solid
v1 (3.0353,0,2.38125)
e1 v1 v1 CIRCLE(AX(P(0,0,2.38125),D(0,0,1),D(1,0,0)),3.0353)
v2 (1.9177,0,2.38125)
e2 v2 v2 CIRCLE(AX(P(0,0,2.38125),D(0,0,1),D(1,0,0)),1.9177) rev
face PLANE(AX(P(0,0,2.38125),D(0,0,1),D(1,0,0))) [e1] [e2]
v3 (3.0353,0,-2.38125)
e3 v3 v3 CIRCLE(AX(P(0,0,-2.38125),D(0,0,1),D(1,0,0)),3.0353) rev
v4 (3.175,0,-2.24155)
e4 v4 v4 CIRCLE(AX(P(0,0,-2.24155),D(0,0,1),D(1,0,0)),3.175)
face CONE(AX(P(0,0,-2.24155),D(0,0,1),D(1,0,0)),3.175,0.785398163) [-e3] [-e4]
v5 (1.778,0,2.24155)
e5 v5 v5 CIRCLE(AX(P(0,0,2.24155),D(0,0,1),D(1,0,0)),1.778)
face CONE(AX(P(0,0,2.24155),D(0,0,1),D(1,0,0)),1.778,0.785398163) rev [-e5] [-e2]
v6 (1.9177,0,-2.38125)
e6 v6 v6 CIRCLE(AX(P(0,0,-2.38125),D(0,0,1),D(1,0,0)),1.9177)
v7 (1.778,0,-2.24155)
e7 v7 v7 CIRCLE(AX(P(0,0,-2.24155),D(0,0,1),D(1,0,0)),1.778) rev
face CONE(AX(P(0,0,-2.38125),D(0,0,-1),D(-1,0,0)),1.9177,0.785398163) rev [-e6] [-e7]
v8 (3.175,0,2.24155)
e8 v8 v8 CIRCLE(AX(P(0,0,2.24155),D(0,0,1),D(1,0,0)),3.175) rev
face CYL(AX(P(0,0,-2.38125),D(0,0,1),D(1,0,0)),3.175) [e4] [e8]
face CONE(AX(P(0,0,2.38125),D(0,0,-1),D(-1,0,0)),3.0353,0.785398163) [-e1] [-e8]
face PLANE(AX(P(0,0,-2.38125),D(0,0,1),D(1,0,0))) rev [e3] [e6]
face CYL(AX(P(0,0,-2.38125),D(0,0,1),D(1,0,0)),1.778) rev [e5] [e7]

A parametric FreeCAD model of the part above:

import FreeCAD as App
import Part
import Sketcher

V = App.Vector
Q = App.Units.Quantity


def edges_at(feature, points):
    """Names of the edges that pass closest to the given points."""
    edges = feature.Shape.Edges
    near = lambda p: min(range(len(edges)), key=lambda i: edges[i].distToShape(Part.Vertex(*p))[0])
    return sorted({f"Edge{near(p) + 1}" for p in points})

doc = App.newDocument("Part")
body = doc.addObject("PartDesign::Body", "Body")

sketch1 = doc.addObject("Sketcher::SketchObject", "Sketch")
body.addObject(sketch1)
sketch1.AttachmentSupport = (doc.XY_Plane, [""])
sketch1.MapMode = "FlatFace"
sketch1.addGeometry([
    Part.Circle(V(0, 0, 0), V(0, 0, 1), 3.2),
    Part.Circle(V(0, 0, 0), V(0, 0, 1), 1.8),
], False)
sketch1.addConstraint([
    Sketcher.Constraint("Coincident", 0, 3, -1, 1),
    Sketcher.Constraint("Coincident", 1, 3, -1, 1),
    Sketcher.Constraint("Diameter", 0, Q("0.25 in")),
    Sketcher.Constraint("Diameter", 1, Q("0.14 in")),
])
pad1 = doc.addObject("PartDesign::Pad", "Pad")
body.addObject(pad1)
pad1.Profile = sketch1
pad1.Type = "TwoLengths"
pad1.Length = Q("0.09375 in")
pad1.Length2 = Q("0.09375 in")
doc.recompute()

chamfer = doc.addObject("PartDesign::Chamfer", "Chamfer")
body.addObject(chamfer)
chamfer.Base = (pad1, edges_at(pad1, [
    (-3.175, 0, -2.381),
    (-1.778, 0, -2.381),
    (-3.175, 0, 2.381),
    (-1.778, 0, 2.381),
]))
chamfer.Size = Q("0.0055 in")

doc.recompute()
